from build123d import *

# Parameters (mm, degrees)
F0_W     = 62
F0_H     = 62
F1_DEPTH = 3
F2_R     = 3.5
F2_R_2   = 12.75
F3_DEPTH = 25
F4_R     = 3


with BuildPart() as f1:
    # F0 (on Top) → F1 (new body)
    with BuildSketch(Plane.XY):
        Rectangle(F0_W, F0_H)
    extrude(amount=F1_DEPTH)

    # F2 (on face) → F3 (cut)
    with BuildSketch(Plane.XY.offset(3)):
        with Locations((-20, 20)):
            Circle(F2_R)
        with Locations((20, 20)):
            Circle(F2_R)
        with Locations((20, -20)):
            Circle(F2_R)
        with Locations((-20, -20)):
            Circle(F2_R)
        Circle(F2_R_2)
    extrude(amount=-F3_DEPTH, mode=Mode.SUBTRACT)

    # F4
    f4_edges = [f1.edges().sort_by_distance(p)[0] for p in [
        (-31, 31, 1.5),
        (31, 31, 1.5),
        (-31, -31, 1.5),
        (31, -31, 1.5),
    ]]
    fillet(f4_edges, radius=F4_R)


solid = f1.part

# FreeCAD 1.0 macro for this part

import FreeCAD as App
import Part
import Sketcher

V = App.Vector


def edges_at(feature, points):
    """Names of the edges that pass closest to the given points."""
    edges = feature.Shape.Edges
    near = lambda p: min(range(len(edges)), key=lambda i: edges[i].distToShape(Part.Vertex(*p))[0])
    return sorted({f"Edge{near(p) + 1}" for p in points})


def add_polygon(sketch, points):
    """Adds a closed chain of lines whose ends are joined by coincident constraints."""
    first, n = sketch.GeometryCount, len(points)
    for a, b in zip(points, points[1:] + points[:1]):
        sketch.addGeometry(Part.LineSegment(App.Vector(*a, 0), App.Vector(*b, 0)), False)
    for i in range(n):
        sketch.addConstraint(Sketcher.Constraint("Coincident", first + i, 2, first + (i + 1) % n, 1))

doc = App.newDocument("Part")
body = doc.addObject("PartDesign::Body", "Body")

# Sketch on XY plane
sketch1 = doc.addObject("Sketcher::SketchObject", "Sketch")
body.addObject(sketch1)
sketch1.AttachmentSupport = (doc.XY_Plane, [""])
sketch1.MapMode = "FlatFace"
add_polygon(sketch1, [(-31, 31), (-31, -31), (31, -31), (31, 31)])  # lines 0-3
sketch1.addConstraint(Sketcher.Constraint("Vertical", 0))
sketch1.addConstraint(Sketcher.Constraint("Horizontal", 1))
sketch1.addConstraint(Sketcher.Constraint("Vertical", 2))
sketch1.addConstraint(Sketcher.Constraint("Horizontal", 3))
sketch1.addConstraint(Sketcher.Constraint("Symmetric", 0, 2, 2, 2, -1, 1))
sketch1.addConstraint(Sketcher.Constraint("Equal", 3, 0))
sketch1.addConstraint(Sketcher.Constraint("DistanceX", 1, 1, 1, 2, 62.0))
pad1 = doc.addObject("PartDesign::Pad", "Pad")
body.addObject(pad1)
pad1.Profile = sketch1
pad1.Length = 3

# Sketch on XY plane
sketch2 = doc.addObject("Sketcher::SketchObject", "Sketch001")
body.addObject(sketch2)
sketch2.AttachmentSupport = (doc.XY_Plane, [""])
sketch2.MapMode = "FlatFace"
sketch2.AttachmentOffset = App.Placement(V(0, 0, 3), App.Rotation())
sketch2.addGeometry(Part.Circle(V(-20, 20, 0), V(0, 0, 1), 3.5), False)
sketch2.addGeometry(Part.Circle(V(20, 20, 0), V(0, 0, 1), 3.5), False)
sketch2.addGeometry(Part.Circle(V(20, -20, 0), V(0, 0, 1), 3.5), False)
sketch2.addGeometry(Part.Circle(V(-20, -20, 0), V(0, 0, 1), 3.5), False)
sketch2.addGeometry(Part.Circle(V(0, 0, 0), V(0, 0, 1), 12.75), False)
sketch2.addConstraint(Sketcher.Constraint("Coincident", 4, 3, -1, 1))
sketch2.addConstraint(Sketcher.Constraint("Equal", 0, 1))
sketch2.addConstraint(Sketcher.Constraint("Equal", 1, 2))
sketch2.addConstraint(Sketcher.Constraint("Equal", 2, 3))
sketch2.addConstraint(Sketcher.Constraint("Symmetric", 0, 3, 2, 3, -1, 1))
sketch2.addConstraint(Sketcher.Constraint("Symmetric", 1, 3, 3, 3, -1, 1))
sketch2.addConstraint(Sketcher.Constraint("Symmetric", 0, 3, 1, 3, -2))
sketch2.addConstraint(Sketcher.Constraint("Diameter", 0, 7.0))
sketch2.addConstraint(Sketcher.Constraint("Diameter", 4, 25.5))
sketch2.addConstraint(Sketcher.Constraint("DistanceX", 0, 3, -1, 1, 20.0))
sketch2.addConstraint(Sketcher.Constraint("DistanceY", -1, 1, 0, 3, 20.0))
pocket1 = doc.addObject("PartDesign::Pocket", "Pocket")
body.addObject(pocket1)
pocket1.Profile = sketch2
pocket1.Length = 25
doc.recompute()

fillet = doc.addObject("PartDesign::Fillet", "Fillet")
body.addObject(fillet)
fillet.Base = (pocket1, edges_at(pocket1, [
    (-31, 31, 1.5),
    (31, 31, 1.5),
    (-31, -31, 1.5),
    (31, -31, 1.5),
]))
fillet.Radius = 3

doc.recompute()
